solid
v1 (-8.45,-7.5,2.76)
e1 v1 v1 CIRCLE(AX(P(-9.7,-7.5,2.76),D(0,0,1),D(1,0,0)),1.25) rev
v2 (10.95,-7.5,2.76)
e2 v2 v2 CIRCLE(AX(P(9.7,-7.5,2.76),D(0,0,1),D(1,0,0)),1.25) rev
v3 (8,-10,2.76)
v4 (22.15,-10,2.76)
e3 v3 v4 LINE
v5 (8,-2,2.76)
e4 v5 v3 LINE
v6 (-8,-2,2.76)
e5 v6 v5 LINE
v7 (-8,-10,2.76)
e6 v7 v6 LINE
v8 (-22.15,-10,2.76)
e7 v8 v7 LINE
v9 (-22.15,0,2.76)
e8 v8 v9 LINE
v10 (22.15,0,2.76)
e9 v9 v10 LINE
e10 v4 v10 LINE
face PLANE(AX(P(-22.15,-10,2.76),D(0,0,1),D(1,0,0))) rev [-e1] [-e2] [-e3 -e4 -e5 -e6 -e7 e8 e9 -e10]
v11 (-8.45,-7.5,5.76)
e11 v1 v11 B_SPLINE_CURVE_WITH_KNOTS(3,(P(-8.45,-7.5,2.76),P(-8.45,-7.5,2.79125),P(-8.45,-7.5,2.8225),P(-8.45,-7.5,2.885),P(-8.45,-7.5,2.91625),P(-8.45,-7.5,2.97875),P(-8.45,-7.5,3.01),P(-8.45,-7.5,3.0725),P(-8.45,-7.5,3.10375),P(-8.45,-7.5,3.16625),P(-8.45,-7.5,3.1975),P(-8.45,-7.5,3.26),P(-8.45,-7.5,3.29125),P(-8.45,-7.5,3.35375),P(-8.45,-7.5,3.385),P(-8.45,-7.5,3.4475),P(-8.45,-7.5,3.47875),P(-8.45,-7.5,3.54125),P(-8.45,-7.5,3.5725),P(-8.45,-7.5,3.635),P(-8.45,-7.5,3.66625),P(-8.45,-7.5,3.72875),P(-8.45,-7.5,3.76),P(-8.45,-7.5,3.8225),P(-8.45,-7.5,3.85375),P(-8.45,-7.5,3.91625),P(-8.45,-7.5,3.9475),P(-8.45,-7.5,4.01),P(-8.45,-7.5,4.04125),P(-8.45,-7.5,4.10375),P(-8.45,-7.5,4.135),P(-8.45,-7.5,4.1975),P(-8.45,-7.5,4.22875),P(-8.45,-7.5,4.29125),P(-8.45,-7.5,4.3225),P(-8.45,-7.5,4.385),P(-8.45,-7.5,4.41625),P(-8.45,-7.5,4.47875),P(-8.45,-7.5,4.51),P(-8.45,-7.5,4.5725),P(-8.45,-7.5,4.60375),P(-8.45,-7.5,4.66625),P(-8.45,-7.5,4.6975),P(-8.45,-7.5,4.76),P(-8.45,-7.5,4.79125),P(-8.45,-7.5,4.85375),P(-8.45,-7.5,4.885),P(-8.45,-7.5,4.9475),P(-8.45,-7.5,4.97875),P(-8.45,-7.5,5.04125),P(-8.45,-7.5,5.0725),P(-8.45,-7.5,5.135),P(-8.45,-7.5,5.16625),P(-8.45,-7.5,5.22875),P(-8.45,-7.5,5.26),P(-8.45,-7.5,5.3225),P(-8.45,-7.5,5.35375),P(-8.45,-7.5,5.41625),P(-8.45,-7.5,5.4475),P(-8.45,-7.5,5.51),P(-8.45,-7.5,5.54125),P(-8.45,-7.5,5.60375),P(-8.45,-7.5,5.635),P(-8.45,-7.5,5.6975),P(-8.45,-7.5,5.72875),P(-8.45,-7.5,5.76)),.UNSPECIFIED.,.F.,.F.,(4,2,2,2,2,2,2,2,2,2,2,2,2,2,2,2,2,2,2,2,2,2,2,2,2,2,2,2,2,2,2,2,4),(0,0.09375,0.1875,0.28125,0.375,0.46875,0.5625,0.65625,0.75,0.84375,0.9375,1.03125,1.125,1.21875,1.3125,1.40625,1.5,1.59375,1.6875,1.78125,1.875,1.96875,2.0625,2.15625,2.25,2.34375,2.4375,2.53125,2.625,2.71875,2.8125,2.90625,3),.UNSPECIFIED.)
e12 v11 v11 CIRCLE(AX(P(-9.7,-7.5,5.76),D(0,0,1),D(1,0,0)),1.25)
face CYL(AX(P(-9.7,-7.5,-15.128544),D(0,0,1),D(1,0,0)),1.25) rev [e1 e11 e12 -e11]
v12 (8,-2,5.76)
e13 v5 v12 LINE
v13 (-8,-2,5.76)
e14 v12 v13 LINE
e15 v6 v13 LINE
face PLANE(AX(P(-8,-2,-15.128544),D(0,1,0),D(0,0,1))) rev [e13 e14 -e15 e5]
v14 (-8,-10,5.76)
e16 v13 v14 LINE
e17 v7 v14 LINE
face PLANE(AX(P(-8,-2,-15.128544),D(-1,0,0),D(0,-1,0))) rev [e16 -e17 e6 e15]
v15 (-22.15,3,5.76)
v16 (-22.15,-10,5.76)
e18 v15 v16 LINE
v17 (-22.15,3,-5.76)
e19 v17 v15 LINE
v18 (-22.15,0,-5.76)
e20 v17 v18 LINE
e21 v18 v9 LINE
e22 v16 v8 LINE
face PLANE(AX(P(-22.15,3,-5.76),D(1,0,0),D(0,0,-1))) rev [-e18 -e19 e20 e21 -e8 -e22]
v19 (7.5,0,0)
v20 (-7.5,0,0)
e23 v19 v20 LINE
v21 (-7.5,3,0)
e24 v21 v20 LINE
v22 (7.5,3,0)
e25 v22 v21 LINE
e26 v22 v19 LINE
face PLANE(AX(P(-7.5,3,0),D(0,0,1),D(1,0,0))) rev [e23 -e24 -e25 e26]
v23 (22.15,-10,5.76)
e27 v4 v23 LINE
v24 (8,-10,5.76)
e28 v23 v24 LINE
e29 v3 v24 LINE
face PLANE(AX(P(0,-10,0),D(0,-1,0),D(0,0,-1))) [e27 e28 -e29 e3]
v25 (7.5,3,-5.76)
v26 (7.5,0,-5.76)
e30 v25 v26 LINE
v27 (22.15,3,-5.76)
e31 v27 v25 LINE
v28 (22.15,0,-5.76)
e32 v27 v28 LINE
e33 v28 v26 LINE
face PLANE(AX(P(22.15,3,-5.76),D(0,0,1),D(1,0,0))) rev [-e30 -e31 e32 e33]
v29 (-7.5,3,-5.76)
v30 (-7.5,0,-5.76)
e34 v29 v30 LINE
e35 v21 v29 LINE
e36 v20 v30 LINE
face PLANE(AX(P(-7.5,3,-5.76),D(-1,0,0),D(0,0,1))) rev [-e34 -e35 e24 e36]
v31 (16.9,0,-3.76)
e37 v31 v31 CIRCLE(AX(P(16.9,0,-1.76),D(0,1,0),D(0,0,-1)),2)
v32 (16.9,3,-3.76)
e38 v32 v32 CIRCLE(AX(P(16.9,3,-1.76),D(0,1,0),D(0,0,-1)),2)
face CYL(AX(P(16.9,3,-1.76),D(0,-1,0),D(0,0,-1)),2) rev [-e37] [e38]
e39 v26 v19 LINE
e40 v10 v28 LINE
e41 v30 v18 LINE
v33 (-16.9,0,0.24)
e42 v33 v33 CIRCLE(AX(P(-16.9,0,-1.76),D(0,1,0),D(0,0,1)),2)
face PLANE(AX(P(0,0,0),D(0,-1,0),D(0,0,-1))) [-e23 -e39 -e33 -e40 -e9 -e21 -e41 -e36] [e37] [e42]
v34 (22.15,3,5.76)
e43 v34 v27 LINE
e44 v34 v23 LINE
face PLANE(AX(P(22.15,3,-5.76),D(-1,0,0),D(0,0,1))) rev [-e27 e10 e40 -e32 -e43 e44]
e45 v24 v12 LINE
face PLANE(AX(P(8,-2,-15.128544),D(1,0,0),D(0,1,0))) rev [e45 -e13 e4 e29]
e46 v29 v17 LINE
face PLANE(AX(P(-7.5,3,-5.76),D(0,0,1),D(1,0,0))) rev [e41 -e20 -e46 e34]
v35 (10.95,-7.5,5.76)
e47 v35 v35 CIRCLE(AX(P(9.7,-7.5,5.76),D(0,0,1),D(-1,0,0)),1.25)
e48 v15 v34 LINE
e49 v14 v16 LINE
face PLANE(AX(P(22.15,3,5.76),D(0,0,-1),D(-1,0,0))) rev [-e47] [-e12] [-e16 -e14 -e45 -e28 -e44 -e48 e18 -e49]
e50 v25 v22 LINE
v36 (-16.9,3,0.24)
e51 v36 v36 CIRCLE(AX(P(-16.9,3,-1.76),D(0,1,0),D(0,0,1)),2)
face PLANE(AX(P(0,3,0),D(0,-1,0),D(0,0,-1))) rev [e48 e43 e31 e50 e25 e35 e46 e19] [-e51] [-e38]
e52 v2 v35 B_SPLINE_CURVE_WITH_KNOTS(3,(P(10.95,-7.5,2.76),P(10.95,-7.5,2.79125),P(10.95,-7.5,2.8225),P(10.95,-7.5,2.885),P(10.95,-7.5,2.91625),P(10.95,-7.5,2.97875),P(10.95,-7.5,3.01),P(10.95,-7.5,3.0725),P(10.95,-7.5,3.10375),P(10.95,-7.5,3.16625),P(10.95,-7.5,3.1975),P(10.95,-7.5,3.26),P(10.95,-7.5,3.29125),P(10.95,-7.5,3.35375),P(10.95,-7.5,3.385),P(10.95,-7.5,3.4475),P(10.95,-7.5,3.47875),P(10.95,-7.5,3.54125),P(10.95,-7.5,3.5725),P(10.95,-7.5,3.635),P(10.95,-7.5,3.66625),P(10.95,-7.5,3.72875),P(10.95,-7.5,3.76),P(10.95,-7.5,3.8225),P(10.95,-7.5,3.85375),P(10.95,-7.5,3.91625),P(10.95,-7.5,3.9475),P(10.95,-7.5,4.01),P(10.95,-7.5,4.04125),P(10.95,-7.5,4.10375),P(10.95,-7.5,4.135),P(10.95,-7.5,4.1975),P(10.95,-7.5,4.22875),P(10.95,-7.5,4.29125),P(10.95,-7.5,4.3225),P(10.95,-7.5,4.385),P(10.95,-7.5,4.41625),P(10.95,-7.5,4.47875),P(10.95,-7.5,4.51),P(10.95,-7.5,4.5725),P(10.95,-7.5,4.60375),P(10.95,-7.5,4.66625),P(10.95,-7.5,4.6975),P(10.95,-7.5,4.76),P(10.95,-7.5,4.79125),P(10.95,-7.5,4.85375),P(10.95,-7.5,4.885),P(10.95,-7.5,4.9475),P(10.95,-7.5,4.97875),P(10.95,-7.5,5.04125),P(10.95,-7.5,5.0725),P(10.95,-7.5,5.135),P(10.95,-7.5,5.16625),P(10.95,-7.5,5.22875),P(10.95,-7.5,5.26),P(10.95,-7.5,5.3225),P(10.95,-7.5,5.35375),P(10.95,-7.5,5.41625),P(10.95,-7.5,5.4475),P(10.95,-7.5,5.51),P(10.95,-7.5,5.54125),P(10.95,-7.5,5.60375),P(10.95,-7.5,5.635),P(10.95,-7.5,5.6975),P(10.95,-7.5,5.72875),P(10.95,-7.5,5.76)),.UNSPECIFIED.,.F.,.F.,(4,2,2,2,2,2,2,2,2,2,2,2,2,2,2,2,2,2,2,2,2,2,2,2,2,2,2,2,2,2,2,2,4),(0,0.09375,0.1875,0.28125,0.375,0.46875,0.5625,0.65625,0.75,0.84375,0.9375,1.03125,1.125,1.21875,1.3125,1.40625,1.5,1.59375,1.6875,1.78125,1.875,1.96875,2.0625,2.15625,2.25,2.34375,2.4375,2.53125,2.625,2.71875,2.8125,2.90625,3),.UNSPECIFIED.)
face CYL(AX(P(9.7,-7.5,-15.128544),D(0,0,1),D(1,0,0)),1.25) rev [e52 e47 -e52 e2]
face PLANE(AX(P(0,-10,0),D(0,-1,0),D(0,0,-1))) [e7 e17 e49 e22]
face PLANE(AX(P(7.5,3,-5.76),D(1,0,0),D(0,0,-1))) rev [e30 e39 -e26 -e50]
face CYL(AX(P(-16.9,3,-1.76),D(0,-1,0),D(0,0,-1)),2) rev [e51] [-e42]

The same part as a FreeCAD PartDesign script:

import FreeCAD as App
import Part
import Sketcher


def add_polygon(sketch, points):
    """Adds a closed chain of lines whose ends are joined by coincident constraints."""
    first, n = sketch.GeometryCount, len(points)
    for a, b in zip(points, points[1:] + points[:1]):
        sketch.addGeometry(Part.LineSegment(App.Vector(*a, 0), App.Vector(*b, 0)), False)
    for i in range(n):
        sketch.addConstraint(Sketcher.Constraint("Coincident", first + i, 2, first + (i + 1) % n, 1))

doc = App.newDocument("Part")
body = doc.addObject("PartDesign::Body", "Body")

sketch1 = body.newObject("Sketcher::SketchObject", "Sketch")
sketch1.AttachmentSupport = (doc.getObject("XZ_Plane"), [""])
sketch1.MapMode = "FlatFace"
add_polygon(sketch1, [(22.1, -5.8), (7.5, -5.8), (7.5, 0), (-7.5, 0), (-7.5, -5.8), (-22.1, -5.8), (-22.1, 5.8), (22.1, 5.8)])
sketch1.addGeometry(Part.Circle(App.Vector(-16.9, -1.8, 0), App.Vector(0, 0, 1), 2), False)
sketch1.addGeometry(Part.Circle(App.Vector(16.9, -1.8, 0), App.Vector(0, 0, 1), 2), False)
sketch1.addConstraint([
    Sketcher.Constraint("Horizontal", 0),
    Sketcher.Constraint("Vertical", 1),
    Sketcher.Constraint("Horizontal", 2),
    Sketcher.Constraint("Vertical", 3),
    Sketcher.Constraint("Horizontal", 4),
    Sketcher.Constraint("Vertical", 5),
    Sketcher.Constraint("Horizontal", 6),
    Sketcher.Constraint("Vertical", 7),
    Sketcher.Constraint("Equal", 8, 9),
    Sketcher.Constraint("Symmetric", 1, 2, 2, 2, -1, 1),
    Sketcher.Constraint("Symmetric", 4, 2, 6, 2, -1, 1),
    Sketcher.Constraint("Symmetric", 8, 3, 9, 3, -2),
    Sketcher.Constraint("Horizontal", 0, 2, 3, 2),
    Sketcher.Constraint("Diameter", 8, 4.0),
    Sketcher.Constraint("DistanceX", 2, 2, 2, 1, 15.0),
    Sketcher.Constraint("DistanceX", 6, 1, 6, 2, 44.3),
    Sketcher.Constraint("DistanceY", 0, 2, 9, 3, 4.0),
    Sketcher.Constraint("DistanceY", 1, 1, 1, 2, 5.76),
    Sketcher.Constraint("DistanceX", 8, 3, -1, 1, 16.9),
])
pad1 = body.newObject("PartDesign::Pad", "Pad")
pad1.Profile = sketch1
pad1.Length = 3
pad1.Reversed = True

sketch2 = body.newObject("Sketcher::SketchObject", "Sketch001")
sketch2.AttachmentSupport = (doc.getObject("XZ_Plane"), [""])
sketch2.MapMode = "FlatFace"
add_polygon(sketch2, [(22.1, 2.8), (22.1, 5.8), (-22.1, 5.8), (-22.1, 2.8)])
sketch2.addConstraint([
    Sketcher.Constraint("Vertical", 0),
    Sketcher.Constraint("Horizontal", 1),
    Sketcher.Constraint("Vertical", 2),
    Sketcher.Constraint("Horizontal", 3),
    Sketcher.Constraint("DistanceY", 0, 1, 0, 2, 3.0),
    Sketcher.Constraint("DistanceX", 1, 2, 1, 1, 44.3),
    Sketcher.Constraint("DistanceX", -1, 1, 0, 2, 22.15),
    Sketcher.Constraint("DistanceY", -1, 1, 0, 2, 5.76),
])
pad2 = body.newObject("PartDesign::Pad", "Pad001")
pad2.Profile = sketch2
pad2.Length = 10

sketch3 = body.newObject("Sketcher::SketchObject", "Sketch002")
sketch3.AttachmentSupport = (doc.getObject("XY_Plane"), [""])
sketch3.MapMode = "FlatFace"
sketch3.AttachmentOffset = App.Placement(App.Vector(0, 0, 5.76), App.Rotation())
sketch3.addGeometry(Part.Circle(App.Vector(-9.7, -7.5, 0), App.Vector(0, 0, 1), 1.2), False)
sketch3.addGeometry(Part.Circle(App.Vector(9.7, -7.5, 0), App.Vector(0, 0, 1), 1.2), False)
add_polygon(sketch3, [(-8, -2), (-8, -10), (8, -10), (8, -2)])
sketch3.addConstraint([
    Sketcher.Constraint("Vertical", 2),
    Sketcher.Constraint("Horizontal", 3),
    Sketcher.Constraint("Vertical", 4),
    Sketcher.Constraint("Horizontal", 5),
    Sketcher.Constraint("Equal", 0, 1),
    Sketcher.Constraint("Symmetric", 0, 3, 1, 3, -2),
    Sketcher.Constraint("Diameter", 0, 2.5),
    Sketcher.Constraint("DistanceX", 3, 1, 3, 2, 16.0),
    Sketcher.Constraint("DistanceY", 2, 2, 2, 1, 8.0),
    Sketcher.Constraint("DistanceX", 2, 2, -1, 1, 8.0),
    Sketcher.Constraint("DistanceY", 2, 2, -1, 1, 10.0),
    Sketcher.Constraint("DistanceX", 0, 3, -1, 1, 9.7),
    Sketcher.Constraint("DistanceY", 0, 3, -1, 1, 7.5),
])
pocket1 = body.newObject("PartDesign::Pocket", "Pocket")
pocket1.Profile = sketch3
pocket1.Length = 3

doc.recompute()
